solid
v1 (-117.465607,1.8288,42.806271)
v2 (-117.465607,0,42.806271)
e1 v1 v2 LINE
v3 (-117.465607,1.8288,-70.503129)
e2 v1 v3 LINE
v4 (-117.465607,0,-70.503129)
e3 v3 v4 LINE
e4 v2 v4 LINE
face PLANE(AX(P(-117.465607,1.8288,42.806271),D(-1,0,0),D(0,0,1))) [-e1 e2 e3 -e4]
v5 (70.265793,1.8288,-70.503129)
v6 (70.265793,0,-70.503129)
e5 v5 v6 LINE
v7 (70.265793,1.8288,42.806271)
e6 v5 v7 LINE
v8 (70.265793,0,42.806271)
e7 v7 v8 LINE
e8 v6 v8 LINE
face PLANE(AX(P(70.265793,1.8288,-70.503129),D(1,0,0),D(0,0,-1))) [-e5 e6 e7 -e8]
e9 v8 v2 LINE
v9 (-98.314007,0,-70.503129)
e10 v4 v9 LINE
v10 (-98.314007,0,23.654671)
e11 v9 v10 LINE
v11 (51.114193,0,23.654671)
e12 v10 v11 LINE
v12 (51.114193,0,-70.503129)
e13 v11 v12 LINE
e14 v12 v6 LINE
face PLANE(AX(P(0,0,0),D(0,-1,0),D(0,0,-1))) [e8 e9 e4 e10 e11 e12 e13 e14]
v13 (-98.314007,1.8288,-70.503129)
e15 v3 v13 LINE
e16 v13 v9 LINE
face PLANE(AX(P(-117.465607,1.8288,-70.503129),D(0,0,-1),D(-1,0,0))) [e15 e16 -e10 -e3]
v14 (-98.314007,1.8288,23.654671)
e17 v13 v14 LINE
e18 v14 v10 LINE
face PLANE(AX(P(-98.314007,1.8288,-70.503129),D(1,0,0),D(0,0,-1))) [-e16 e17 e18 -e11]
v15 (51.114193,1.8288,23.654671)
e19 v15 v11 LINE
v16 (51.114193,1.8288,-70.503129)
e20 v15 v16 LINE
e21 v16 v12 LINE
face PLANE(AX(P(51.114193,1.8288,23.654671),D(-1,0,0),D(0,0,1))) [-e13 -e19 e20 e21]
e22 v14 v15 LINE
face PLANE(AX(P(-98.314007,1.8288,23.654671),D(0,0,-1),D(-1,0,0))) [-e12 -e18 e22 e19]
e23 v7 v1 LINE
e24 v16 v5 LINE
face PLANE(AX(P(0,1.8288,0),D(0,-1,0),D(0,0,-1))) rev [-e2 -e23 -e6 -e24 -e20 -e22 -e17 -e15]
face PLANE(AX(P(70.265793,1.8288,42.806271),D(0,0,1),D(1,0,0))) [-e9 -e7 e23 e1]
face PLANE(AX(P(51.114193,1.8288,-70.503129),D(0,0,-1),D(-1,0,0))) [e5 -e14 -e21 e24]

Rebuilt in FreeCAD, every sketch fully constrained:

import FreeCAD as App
import Part
import Sketcher

V = App.Vector
Q = App.Units.Quantity


def add_polygon(sketch, points):
    """Adds a closed chain of lines whose ends are joined by coincident constraints."""
    first, n = sketch.GeometryCount, len(points)
    for a, b in zip(points, points[1:] + points[:1]):
        sketch.addGeometry(Part.LineSegment(App.Vector(*a, 0), App.Vector(*b, 0)), False)
    for i in range(n):
        sketch.addConstraint(Sketcher.Constraint("Coincident", first + i, 2, first + (i + 1) % n, 1))

doc = App.newDocument("Part")
params = doc.addObject("Spreadsheet::Sheet", "Params")
for row, (alias, value) in enumerate([
    ("sketch1_width", "0.754 in"),
    ("sketch1_width2", "5.883 in"),
    ("sketch1_height", "3.707 in"),
    ("sketch1_height2", "4.461 in"),
    ("pad1_length", "0.072 in"),
], start=1):
    params.set(f"A{row}", alias)
    params.set(f"B{row}", "=" + value)
    params.setAlias(f"B{row}", alias)

body = doc.addObject("PartDesign::Body", "Body")

sketch1 = body.newObject("Sketcher::SketchObject", "Sketch")
sketch1.AttachmentSupport = (doc.getObject("XZ_Plane"), [""])
sketch1.MapMode = "FlatFace"
add_polygon(sketch1, [(70, -71), (51, -71), (51, 24), (-98, 24), (-98, -71), (-117, -71), (-117, 43), (70, 43)])
sketch1.addConstraint(Sketcher.Constraint("Horizontal", 0))
sketch1.addConstraint(Sketcher.Constraint("Vertical", 1))
sketch1.addConstraint(Sketcher.Constraint("Horizontal", 2))
sketch1.addConstraint(Sketcher.Constraint("Vertical", 3))
sketch1.addConstraint(Sketcher.Constraint("Horizontal", 4))
sketch1.addConstraint(Sketcher.Constraint("Vertical", 5))
sketch1.addConstraint(Sketcher.Constraint("Horizontal", 6))
sketch1.addConstraint(Sketcher.Constraint("Vertical", 7))
sketch1.addConstraint(Sketcher.Constraint("Horizontal", 0, 2, 3, 2))
sketch1.addConstraint(Sketcher.Constraint("Equal", 0, 4))
sketch1.addConstraint(Sketcher.Constraint("DistanceX", 0, 2, 0, 1, Q("0.754 in")))
sketch1.addConstraint(Sketcher.Constraint("DistanceX", 2, 2, 2, 1, Q("5.883 in")))
sketch1.addConstraint(Sketcher.Constraint("DistanceY", 1, 1, 1, 2, Q("3.707 in")))
sketch1.addConstraint(Sketcher.Constraint("DistanceY", 5, 1, 5, 2, Q("4.461 in")))
sketch1.addConstraint(Sketcher.Constraint("DistanceY", 0, 2, -1, 1, Q("70.503129 mm")))
sketch1.addConstraint(Sketcher.Constraint("DistanceX", -1, 1, 0, 2, Q("51.114193 mm")))
sketch1.setExpression("Constraints[18]", "Params.sketch1_width")
sketch1.setExpression("Constraints[19]", "Params.sketch1_width2")
sketch1.setExpression("Constraints[20]", "Params.sketch1_height")
sketch1.setExpression("Constraints[21]", "Params.sketch1_height2")
pad1 = body.newObject("PartDesign::Pad", "Pad")
pad1.Profile = sketch1
pad1.setExpression("Length", "Params.pad1_length")
pad1.Reversed = True

doc.recompute()
